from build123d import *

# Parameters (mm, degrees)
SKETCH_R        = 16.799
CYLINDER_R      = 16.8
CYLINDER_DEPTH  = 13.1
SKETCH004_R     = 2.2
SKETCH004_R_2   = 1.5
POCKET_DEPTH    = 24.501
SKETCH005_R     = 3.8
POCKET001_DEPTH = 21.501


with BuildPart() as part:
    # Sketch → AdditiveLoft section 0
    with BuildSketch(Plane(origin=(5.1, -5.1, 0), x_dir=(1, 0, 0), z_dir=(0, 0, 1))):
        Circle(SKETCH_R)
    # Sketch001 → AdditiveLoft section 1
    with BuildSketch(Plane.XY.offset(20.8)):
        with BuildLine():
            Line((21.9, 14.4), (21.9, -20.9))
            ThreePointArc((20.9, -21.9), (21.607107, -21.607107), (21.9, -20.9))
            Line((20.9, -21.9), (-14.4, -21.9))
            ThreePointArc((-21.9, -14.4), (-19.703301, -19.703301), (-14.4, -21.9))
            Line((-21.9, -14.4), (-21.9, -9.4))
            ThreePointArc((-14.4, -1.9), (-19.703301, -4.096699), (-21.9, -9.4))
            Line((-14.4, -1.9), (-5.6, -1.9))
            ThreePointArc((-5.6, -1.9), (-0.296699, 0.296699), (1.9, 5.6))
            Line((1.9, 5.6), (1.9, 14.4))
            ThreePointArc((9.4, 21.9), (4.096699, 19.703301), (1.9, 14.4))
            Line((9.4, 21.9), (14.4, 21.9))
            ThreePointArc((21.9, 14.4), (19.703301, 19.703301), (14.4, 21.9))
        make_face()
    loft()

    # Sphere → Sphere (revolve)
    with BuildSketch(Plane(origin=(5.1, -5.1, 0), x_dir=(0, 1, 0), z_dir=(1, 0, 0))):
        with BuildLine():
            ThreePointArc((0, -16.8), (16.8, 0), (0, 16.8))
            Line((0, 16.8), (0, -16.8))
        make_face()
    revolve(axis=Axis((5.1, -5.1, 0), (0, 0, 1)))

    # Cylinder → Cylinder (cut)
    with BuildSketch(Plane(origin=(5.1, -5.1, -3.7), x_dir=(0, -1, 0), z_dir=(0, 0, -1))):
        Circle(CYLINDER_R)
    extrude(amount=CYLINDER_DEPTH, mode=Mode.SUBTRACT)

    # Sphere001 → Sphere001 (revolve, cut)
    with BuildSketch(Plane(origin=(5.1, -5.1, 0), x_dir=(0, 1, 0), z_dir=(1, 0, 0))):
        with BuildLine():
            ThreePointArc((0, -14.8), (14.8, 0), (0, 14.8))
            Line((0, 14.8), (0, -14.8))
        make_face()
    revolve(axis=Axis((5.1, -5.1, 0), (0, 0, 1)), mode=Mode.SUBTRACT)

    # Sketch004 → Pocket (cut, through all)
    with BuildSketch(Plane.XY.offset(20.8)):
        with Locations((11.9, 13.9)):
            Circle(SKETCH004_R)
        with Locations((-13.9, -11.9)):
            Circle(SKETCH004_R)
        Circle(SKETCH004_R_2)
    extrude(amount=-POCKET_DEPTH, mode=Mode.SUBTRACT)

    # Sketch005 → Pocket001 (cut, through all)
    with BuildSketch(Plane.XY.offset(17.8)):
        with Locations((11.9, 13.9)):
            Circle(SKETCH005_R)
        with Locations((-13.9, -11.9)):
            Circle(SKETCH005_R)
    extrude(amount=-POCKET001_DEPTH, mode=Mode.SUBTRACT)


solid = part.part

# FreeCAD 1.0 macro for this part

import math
import FreeCAD as App
import Part
import Sketcher

V = App.Vector

doc = App.newDocument("Part")
params = doc.addObject("Spreadsheet::Sheet", "Params")
for row, (alias, value) in enumerate([
    ("sketch2_radius", "0.999999 mm"),
    ("sketch2_radius2", "7.5 mm"),
    ("sketch2_width", "5 mm"),
    ("sketch2_width2", "8.8 mm"),
    ("sketch3_radius", "16.8 mm"),
    ("revolution_angle", "360 deg"),
    ("sketch4_diameter", "33.6 mm"),
    ("pocket1_length", "13.1 mm"),
    ("sketch5_radius", "14.8 mm"),
    ("groove_angle", "360 deg"),
    ("sketch6_diameter", "3 mm"),
    ("sketch6_diameter2", "4.4 mm"),
    ("sketch7_diameter", "7.6 mm"),
], start=1):
    params.set(f"A{row}", alias)
    params.set(f"B{row}", "=" + value)
    params.setAlias(f"B{row}", alias)

body = doc.addObject("PartDesign::Body", "Body")

# Sketch on XY plane
sketch1 = doc.addObject("Sketcher::SketchObject", "Sketch")
body.addObject(sketch1)
sketch1.AttachmentSupport = (doc.XY_Plane, [""])
sketch1.MapMode = "FlatFace"
sketch1.addGeometry(Part.Circle(V(5, -5, 0), V(0, 0, 1), 17), False)
sketch1.addConstraint([
    Sketcher.Constraint("Diameter", 0, 33.598),
    Sketcher.Constraint("DistanceX", -1, 1, 0, 3, 5.1),
    Sketcher.Constraint("DistanceY", 0, 3, -1, 1, 5.1),
])

# Sketch on XY plane
sketch2 = doc.addObject("Sketcher::SketchObject", "Sketch001")
body.addObject(sketch2)
sketch2.AttachmentSupport = (doc.XY_Plane, [""])
sketch2.MapMode = "FlatFace"
sketch2.AttachmentOffset = App.Placement(V(0, 0, 20.8), App.Rotation())
sketch2.addGeometry([
    Part.LineSegment(V(21.9, -20.9, 0), V(21.9, 14.4, 0)),  # 0
    Part.ArcOfCircle(Part.Circle(V(14.4, 14.4, 0), V(0, 0, 1), 7.5), math.radians(0), math.radians(90)),  # 1
    Part.LineSegment(V(14.4, 21.9, 0), V(9.4, 21.9, 0)),  # 2
    Part.ArcOfCircle(Part.Circle(V(9.4, 14.4, 0), V(0, 0, 1), 7.5), math.radians(90), math.radians(180)),  # 3
    Part.LineSegment(V(1.9, 14.4, 0), V(1.9, 5.6, 0)),  # 4
    Part.ArcOfCircle(Part.Circle(V(-5.6, 5.6, 0), V(0, 0, 1), 7.5), math.radians(-90), math.radians(0)),  # 5
    Part.LineSegment(V(-5.6, -1.9, 0), V(-14.4, -1.9, 0)),  # 6
    Part.ArcOfCircle(Part.Circle(V(-14.4, -9.4, 0), V(0, 0, 1), 7.5), math.radians(90), math.radians(180)),  # 7
    Part.LineSegment(V(-21.9, -9.4, 0), V(-21.9, -14.4, 0)),  # 8
    Part.ArcOfCircle(Part.Circle(V(-14.4, -14.4, 0), V(0, 0, 1), 7.5), math.radians(180), math.radians(270)),  # 9
    Part.LineSegment(V(-14.4, -21.9, 0), V(20.9, -21.9, 0)),  # 10
    Part.ArcOfCircle(Part.Circle(V(20.9, -20.9, 0), V(0, 0, 1), 1), math.radians(-90), math.radians(0)),  # 11
], False)
sketch2.addConstraint([
    Sketcher.Constraint("Tangent", 0, 2, 1, 1),
    Sketcher.Constraint("Tangent", 1, 2, 2, 1),
    Sketcher.Constraint("Tangent", 2, 2, 3, 1),
    Sketcher.Constraint("Tangent", 3, 2, 4, 1),
    Sketcher.Constraint("Tangent", 4, 2, 5, 2),
    Sketcher.Constraint("Tangent", 5, 1, 6, 1),
    Sketcher.Constraint("Tangent", 6, 2, 7, 1),
    Sketcher.Constraint("Tangent", 7, 2, 8, 1),
    Sketcher.Constraint("Tangent", 8, 2, 9, 1),
    Sketcher.Constraint("Tangent", 9, 2, 10, 1),
    Sketcher.Constraint("Tangent", 10, 2, 11, 1),
    Sketcher.Constraint("Tangent", 11, 2, 0, 1),
    Sketcher.Constraint("Vertical", 0),
    Sketcher.Constraint("Horizontal", 2),
    Sketcher.Constraint("Vertical", 4),
    Sketcher.Constraint("Horizontal", 6),
    Sketcher.Constraint("Vertical", 8),
    Sketcher.Constraint("Horizontal", 10),
    Sketcher.Constraint("Equal", 1, 3),
    Sketcher.Constraint("Equal", 3, 5),
    Sketcher.Constraint("Equal", 5, 7),
    Sketcher.Constraint("Equal", 7, 9),
    Sketcher.Constraint("Symmetric", 1, 3, 9, 3, -1, 1),
    Sketcher.Constraint("Equal", 10, 0),
    Sketcher.Constraint("Equal", 6, 4),
    Sketcher.Constraint("Radius", 11, 0.999999),
    Sketcher.Constraint("Radius", 1, 7.5),
    Sketcher.Constraint("DistanceX", 2, 2, 2, 1, 5.0),
    Sketcher.Constraint("DistanceX", 6, 2, 6, 1, 8.8),
])
sketch2.setExpression("Constraints[25]", "Params.sketch2_radius")
sketch2.setExpression("Constraints[26]", "Params.sketch2_radius2")
sketch2.setExpression("Constraints[27]", "Params.sketch2_width")
sketch2.setExpression("Constraints[28]", "Params.sketch2_width2")

additiveloft = doc.addObject("PartDesign::AdditiveLoft", "AdditiveLoft")
body.addObject(additiveloft)
additiveloft.Profile = sketch1
additiveloft.Sections = [sketch2]

# Sketch on YZ plane
sketch3 = doc.addObject("Sketcher::SketchObject", "Sketch002")
body.addObject(sketch3)
sketch3.AttachmentSupport = (doc.YZ_Plane, [""])
sketch3.MapMode = "FlatFace"
sketch3.AttachmentOffset = App.Placement(V(0, 0, 5.1), App.Rotation())
sketch3.addGeometry([
    Part.ArcOfCircle(Part.Circle(V(-5, 0, 0), V(0, 0, 1), 17), math.radians(-90), math.radians(90)),
    Part.LineSegment(V(-5, 17, 0), V(-5, -17, 0)),
], False)
sketch3.addGeometry(Part.LineSegment(V(-5, -17, 0), V(-5, 17, 0)), True)  # axis
sketch3.addConstraint([
    Sketcher.Constraint("Coincident", 0, 1, 1, 2),
    Sketcher.Constraint("Coincident", 1, 1, 0, 2),
    Sketcher.Constraint("Vertical", 1),
    Sketcher.Constraint("Vertical", 2),
    Sketcher.Constraint("Coincident", 2, 1, 0, 1),
    Sketcher.Constraint("PointOnObject", 0, 3, -1),
    Sketcher.Constraint("Equal", 1, 2),
    Sketcher.Constraint("Radius", 0, 16.8),
    Sketcher.Constraint("DistanceX", 0, 3, -1, 1, 5.1),
    Sketcher.Constraint("DistanceX", 0, 1, -1, 1, 5.1),
])
sketch3.setExpression("Constraints[7]", "Params.sketch3_radius")
revolution = doc.addObject("PartDesign::Revolution", "Revolution")
body.addObject(revolution)
revolution.Profile = sketch3
revolution.ReferenceAxis = (sketch3, ["Axis0"])
revolution.setExpression("Angle", "Params.revolution_angle")

# Sketch on XY plane
sketch4 = doc.addObject("Sketcher::SketchObject", "Sketch003")
body.addObject(sketch4)
sketch4.AttachmentSupport = (doc.XY_Plane, [""])
sketch4.MapMode = "FlatFace"
sketch4.AttachmentOffset = App.Placement(V(0, 0, -3.7), App.Rotation())
sketch4.addGeometry(Part.Circle(V(5, -5, 0), V(0, 0, 1), 17), False)
sketch4.addConstraint([
    Sketcher.Constraint("Diameter", 0, 33.6),
    Sketcher.Constraint("DistanceX", -1, 1, 0, 3, 5.1),
    Sketcher.Constraint("DistanceY", 0, 3, -1, 1, 5.1),
])
sketch4.setExpression("Constraints[0]", "Params.sketch4_diameter")
pocket1 = doc.addObject("PartDesign::Pocket", "Pocket")
body.addObject(pocket1)
pocket1.Profile = sketch4
pocket1.setExpression("Length", "Params.pocket1_length")

# Sketch on YZ plane
sketch5 = doc.addObject("Sketcher::SketchObject", "Sketch004")
body.addObject(sketch5)
sketch5.AttachmentSupport = (doc.YZ_Plane, [""])
sketch5.MapMode = "FlatFace"
sketch5.AttachmentOffset = App.Placement(V(0, 0, 5.1), App.Rotation())
sketch5.addGeometry([
    Part.ArcOfCircle(Part.Circle(V(-5, 0, 0), V(0, 0, 1), 15), math.radians(-90), math.radians(90)),
    Part.LineSegment(V(-5, 15, 0), V(-5, -15, 0)),
], False)
sketch5.addGeometry(Part.LineSegment(V(-5, -15, 0), V(-5, 15, 0)), True)  # axis
sketch5.addConstraint([
    Sketcher.Constraint("Coincident", 0, 1, 1, 2),
    Sketcher.Constraint("Coincident", 1, 1, 0, 2),
    Sketcher.Constraint("Vertical", 1),
    Sketcher.Constraint("Vertical", 2),
    Sketcher.Constraint("Coincident", 2, 1, 0, 1),
    Sketcher.Constraint("PointOnObject", 0, 3, -1),
    Sketcher.Constraint("Equal", 1, 2),
    Sketcher.Constraint("Radius", 0, 14.8),
    Sketcher.Constraint("DistanceX", 0, 3, -1, 1, 5.1),
    Sketcher.Constraint("DistanceX", 0, 1, -1, 1, 5.1),
])
sketch5.setExpression("Constraints[7]", "Params.sketch5_radius")
groove = doc.addObject("PartDesign::Groove", "Groove")
body.addObject(groove)
groove.Profile = sketch5
groove.ReferenceAxis = (sketch5, ["Axis0"])
groove.setExpression("Angle", "Params.groove_angle")

# Sketch on XY plane
sketch6 = doc.addObject("Sketcher::SketchObject", "Sketch005")
body.addObject(sketch6)
sketch6.AttachmentSupport = (doc.XY_Plane, [""])
sketch6.MapMode = "FlatFace"
sketch6.AttachmentOffset = App.Placement(V(0, 0, 20.8), App.Rotation())
sketch6.addGeometry([
    Part.Circle(V(11.9, 13.9, 0), V(0, 0, 1), 2.2),
    Part.Circle(V(-13.9, -11.9, 0), V(0, 0, 1), 2.2),
    Part.Circle(V(0, 0, 0), V(0, 0, 1), 1.5),
], False)
sketch6.addConstraint([
    Sketcher.Constraint("Coincident", 2, 3, -1, 1),
    Sketcher.Constraint("Equal", 0, 1),
    Sketcher.Constraint("Diameter", 2, 3.0),
    Sketcher.Constraint("Diameter", 0, 4.4),
    Sketcher.Constraint("DistanceX", -1, 1, 0, 3, 11.9),
    Sketcher.Constraint("DistanceY", -1, 1, 0, 3, 13.9),
    Sketcher.Constraint("DistanceX", 1, 3, -1, 1, 13.9),
    Sketcher.Constraint("DistanceY", 1, 3, -1, 1, 11.9),
])
sketch6.setExpression("Constraints[2]", "Params.sketch6_diameter")
sketch6.setExpression("Constraints[3]", "Params.sketch6_diameter2")
pocket2 = doc.addObject("PartDesign::Pocket", "Pocket001")
body.addObject(pocket2)
pocket2.Profile = sketch6
pocket2.Type = "ThroughAll"

# Sketch on XY plane
sketch7 = doc.addObject("Sketcher::SketchObject", "Sketch006")
body.addObject(sketch7)
sketch7.AttachmentSupport = (doc.XY_Plane, [""])
sketch7.MapMode = "FlatFace"
sketch7.AttachmentOffset = App.Placement(V(0, 0, 17.8), App.Rotation())
sketch7.addGeometry([
    Part.Circle(V(11.9, 13.9, 0), V(0, 0, 1), 3.8),
    Part.Circle(V(-13.9, -11.9, 0), V(0, 0, 1), 3.8),
], False)
sketch7.addConstraint([
    Sketcher.Constraint("Equal", 0, 1),
    Sketcher.Constraint("Diameter", 0, 7.6),
    Sketcher.Constraint("DistanceX", -1, 1, 0, 3, 11.9),
    Sketcher.Constraint("DistanceY", -1, 1, 0, 3, 13.9),
    Sketcher.Constraint("DistanceX", 1, 3, -1, 1, 13.9),
    Sketcher.Constraint("DistanceY", 1, 3, -1, 1, 11.9),
])
sketch7.setExpression("Constraints[1]", "Params.sketch7_diameter")
pocket3 = doc.addObject("PartDesign::Pocket", "Pocket002")
body.addObject(pocket3)
pocket3.Profile = sketch7
pocket3.Type = "ThroughAll"

doc.recompute()
